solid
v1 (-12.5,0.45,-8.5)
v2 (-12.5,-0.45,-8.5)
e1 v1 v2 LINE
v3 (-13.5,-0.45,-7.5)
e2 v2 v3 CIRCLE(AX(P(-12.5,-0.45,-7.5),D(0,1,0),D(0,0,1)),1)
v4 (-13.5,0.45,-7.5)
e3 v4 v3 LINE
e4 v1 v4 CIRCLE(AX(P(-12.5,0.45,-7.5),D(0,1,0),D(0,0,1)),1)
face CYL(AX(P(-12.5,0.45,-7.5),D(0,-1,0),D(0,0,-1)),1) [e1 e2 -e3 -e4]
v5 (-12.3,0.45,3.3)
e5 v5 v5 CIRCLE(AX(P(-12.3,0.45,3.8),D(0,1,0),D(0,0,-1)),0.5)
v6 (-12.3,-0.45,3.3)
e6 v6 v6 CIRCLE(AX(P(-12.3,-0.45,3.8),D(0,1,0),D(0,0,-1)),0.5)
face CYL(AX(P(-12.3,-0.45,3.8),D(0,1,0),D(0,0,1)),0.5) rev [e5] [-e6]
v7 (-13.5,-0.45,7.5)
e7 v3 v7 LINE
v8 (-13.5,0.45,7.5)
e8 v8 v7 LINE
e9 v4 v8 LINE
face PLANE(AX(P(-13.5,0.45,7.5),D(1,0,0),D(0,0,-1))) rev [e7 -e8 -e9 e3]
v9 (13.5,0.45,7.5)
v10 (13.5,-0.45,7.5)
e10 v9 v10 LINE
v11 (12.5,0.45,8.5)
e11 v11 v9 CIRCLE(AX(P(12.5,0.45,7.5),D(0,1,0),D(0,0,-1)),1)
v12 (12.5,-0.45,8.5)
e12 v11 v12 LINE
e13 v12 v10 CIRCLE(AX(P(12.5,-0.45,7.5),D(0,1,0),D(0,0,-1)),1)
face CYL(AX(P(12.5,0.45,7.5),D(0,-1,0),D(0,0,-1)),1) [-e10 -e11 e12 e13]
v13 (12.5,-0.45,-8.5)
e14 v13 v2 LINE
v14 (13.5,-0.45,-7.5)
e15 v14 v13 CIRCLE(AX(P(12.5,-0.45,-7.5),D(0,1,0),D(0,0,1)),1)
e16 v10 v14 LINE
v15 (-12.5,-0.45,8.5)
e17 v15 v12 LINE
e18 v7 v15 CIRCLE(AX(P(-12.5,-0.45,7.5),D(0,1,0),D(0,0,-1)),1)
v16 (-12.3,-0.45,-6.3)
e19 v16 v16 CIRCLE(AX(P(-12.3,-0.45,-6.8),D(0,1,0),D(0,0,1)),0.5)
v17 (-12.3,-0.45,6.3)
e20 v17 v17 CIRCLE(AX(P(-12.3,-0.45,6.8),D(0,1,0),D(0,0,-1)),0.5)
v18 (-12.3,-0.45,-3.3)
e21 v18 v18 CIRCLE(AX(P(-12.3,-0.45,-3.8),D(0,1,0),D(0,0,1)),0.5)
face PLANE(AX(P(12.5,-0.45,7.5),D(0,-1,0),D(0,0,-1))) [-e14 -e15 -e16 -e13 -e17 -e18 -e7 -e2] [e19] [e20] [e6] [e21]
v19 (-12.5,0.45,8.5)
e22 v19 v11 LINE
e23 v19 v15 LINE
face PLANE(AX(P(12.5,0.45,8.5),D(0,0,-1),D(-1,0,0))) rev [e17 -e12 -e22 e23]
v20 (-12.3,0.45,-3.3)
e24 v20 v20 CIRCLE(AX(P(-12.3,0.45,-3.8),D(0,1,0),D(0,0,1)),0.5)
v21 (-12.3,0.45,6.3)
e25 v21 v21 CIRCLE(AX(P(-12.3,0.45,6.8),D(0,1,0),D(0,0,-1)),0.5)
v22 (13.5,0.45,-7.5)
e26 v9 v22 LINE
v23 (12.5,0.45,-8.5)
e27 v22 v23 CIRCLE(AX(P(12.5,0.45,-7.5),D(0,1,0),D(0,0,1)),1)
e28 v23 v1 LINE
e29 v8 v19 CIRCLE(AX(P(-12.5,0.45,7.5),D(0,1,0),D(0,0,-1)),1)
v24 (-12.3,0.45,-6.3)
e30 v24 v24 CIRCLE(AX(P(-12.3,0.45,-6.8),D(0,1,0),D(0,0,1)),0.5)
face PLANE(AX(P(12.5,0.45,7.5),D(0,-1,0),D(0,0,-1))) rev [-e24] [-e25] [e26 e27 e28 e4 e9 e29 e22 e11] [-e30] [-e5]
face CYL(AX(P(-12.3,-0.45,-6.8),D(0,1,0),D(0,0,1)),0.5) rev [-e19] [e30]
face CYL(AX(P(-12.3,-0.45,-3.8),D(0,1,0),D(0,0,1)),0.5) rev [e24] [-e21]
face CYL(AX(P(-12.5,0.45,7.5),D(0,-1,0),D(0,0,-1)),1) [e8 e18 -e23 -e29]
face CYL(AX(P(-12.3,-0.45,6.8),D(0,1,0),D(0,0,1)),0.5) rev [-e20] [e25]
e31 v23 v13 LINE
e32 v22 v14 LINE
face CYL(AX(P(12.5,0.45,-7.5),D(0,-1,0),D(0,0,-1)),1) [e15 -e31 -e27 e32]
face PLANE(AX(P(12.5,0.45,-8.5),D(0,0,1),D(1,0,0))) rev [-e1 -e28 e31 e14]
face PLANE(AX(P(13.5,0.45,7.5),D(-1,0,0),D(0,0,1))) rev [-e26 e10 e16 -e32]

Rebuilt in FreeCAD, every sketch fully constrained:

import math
import FreeCAD as App
import Part
import Sketcher

V = App.Vector

doc = App.newDocument("Part")
body = doc.addObject("PartDesign::Body", "Body")

sketch1 = body.newObject("Sketcher::SketchObject", "Sketch")
sketch1.AttachmentSupport = (doc.getObject("XZ_Plane"), [""])
sketch1.MapMode = "FlatFace"
sketch1.addGeometry([
    Part.LineSegment(V(-12.5, 8.5, 0), V(12.5, 8.5, 0)),
    Part.ArcOfCircle(Part.Circle(V(12.5, 7.5, 0), V(0, 0, 1), 1), math.radians(0), math.radians(90)),
    Part.LineSegment(V(13.5, 7.5, 0), V(13.5, -7.5, 0)),
    Part.ArcOfCircle(Part.Circle(V(12.5, -7.5, 0), V(0, 0, 1), 1), math.radians(-90), math.radians(0)),
    Part.LineSegment(V(12.5, -8.5, 0), V(-12.5, -8.5, 0)),
    Part.ArcOfCircle(Part.Circle(V(-12.5, -7.5, 0), V(0, 0, 1), 1), math.radians(-180), math.radians(-90)),
    Part.LineSegment(V(-13.5, -7.5, 0), V(-13.5, 7.5, 0)),
    Part.ArcOfCircle(Part.Circle(V(-12.5, 7.5, 0), V(0, 0, 1), 1), math.radians(90), math.radians(180)),
], False)
sketch1.addConstraint([
    Sketcher.Constraint("Tangent", 0, 2, 1, 2),
    Sketcher.Constraint("Tangent", 1, 1, 2, 1),
    Sketcher.Constraint("Tangent", 2, 2, 3, 2),
    Sketcher.Constraint("Tangent", 3, 1, 4, 1),
    Sketcher.Constraint("Tangent", 4, 2, 5, 2),
    Sketcher.Constraint("Tangent", 5, 1, 6, 1),
    Sketcher.Constraint("Tangent", 6, 2, 7, 2),
    Sketcher.Constraint("Tangent", 7, 1, 0, 1),
    Sketcher.Constraint("Horizontal", 0),
    Sketcher.Constraint("Vertical", 2),
    Sketcher.Constraint("Horizontal", 4),
    Sketcher.Constraint("Vertical", 6),
    Sketcher.Constraint("Equal", 1, 3),
    Sketcher.Constraint("Equal", 3, 5),
    Sketcher.Constraint("Equal", 5, 7),
    Sketcher.Constraint("Symmetric", 1, 3, 5, 3, -1, 1),
    Sketcher.Constraint("Radius", 1, 1.0),
    Sketcher.Constraint("DistanceX", 0, 1, 0, 2, 25.0),
    Sketcher.Constraint("DistanceY", 2, 2, 2, 1, 15.0),
])
pad1 = body.newObject("PartDesign::Pad", "Pad")
pad1.Profile = sketch1
pad1.Length = 0.9
pad1.Midplane = True

sketch2 = body.newObject("Sketcher::SketchObject", "Sketch001")
sketch2.AttachmentSupport = (doc.getObject("XZ_Plane"), [""])
sketch2.MapMode = "FlatFace"
sketch2.AttachmentOffset = App.Placement(V(0, 0, -0.45), App.Rotation())
sketch2.addGeometry([
    Part.Circle(V(-12.3, -3.8, 0), V(0, 0, 1), 0.5),
    Part.Circle(V(-12.3, -6.8, 0), V(0, 0, 1), 0.5),
    Part.Circle(V(-12.3, 6.8, 0), V(0, 0, 1), 0.5),
    Part.Circle(V(-12.3, 3.8, 0), V(0, 0, 1), 0.5),
], False)
sketch2.addConstraint([
    Sketcher.Constraint("Equal", 0, 1),
    Sketcher.Constraint("Equal", 1, 2),
    Sketcher.Constraint("Equal", 2, 3),
    Sketcher.Constraint("Symmetric", 1, 3, 2, 3, -1),
    Sketcher.Constraint("Symmetric", 0, 3, 3, 3, -1),
    Sketcher.Constraint("Vertical", 0, 3, 1, 3),
    Sketcher.Constraint("Diameter", 0, 1.0),
    Sketcher.Constraint("DistanceY", 1, 3, 0, 3, 3.0),
    Sketcher.Constraint("DistanceX", 0, 3, -1, 1, 12.3),
    Sketcher.Constraint("DistanceY", 0, 3, -1, 1, 3.8),
])
pocket1 = body.newObject("PartDesign::Pocket", "Pocket")
pocket1.Profile = sketch2
pocket1.Type = "ThroughAll"
pocket1.Reversed = True

doc.recompute()
